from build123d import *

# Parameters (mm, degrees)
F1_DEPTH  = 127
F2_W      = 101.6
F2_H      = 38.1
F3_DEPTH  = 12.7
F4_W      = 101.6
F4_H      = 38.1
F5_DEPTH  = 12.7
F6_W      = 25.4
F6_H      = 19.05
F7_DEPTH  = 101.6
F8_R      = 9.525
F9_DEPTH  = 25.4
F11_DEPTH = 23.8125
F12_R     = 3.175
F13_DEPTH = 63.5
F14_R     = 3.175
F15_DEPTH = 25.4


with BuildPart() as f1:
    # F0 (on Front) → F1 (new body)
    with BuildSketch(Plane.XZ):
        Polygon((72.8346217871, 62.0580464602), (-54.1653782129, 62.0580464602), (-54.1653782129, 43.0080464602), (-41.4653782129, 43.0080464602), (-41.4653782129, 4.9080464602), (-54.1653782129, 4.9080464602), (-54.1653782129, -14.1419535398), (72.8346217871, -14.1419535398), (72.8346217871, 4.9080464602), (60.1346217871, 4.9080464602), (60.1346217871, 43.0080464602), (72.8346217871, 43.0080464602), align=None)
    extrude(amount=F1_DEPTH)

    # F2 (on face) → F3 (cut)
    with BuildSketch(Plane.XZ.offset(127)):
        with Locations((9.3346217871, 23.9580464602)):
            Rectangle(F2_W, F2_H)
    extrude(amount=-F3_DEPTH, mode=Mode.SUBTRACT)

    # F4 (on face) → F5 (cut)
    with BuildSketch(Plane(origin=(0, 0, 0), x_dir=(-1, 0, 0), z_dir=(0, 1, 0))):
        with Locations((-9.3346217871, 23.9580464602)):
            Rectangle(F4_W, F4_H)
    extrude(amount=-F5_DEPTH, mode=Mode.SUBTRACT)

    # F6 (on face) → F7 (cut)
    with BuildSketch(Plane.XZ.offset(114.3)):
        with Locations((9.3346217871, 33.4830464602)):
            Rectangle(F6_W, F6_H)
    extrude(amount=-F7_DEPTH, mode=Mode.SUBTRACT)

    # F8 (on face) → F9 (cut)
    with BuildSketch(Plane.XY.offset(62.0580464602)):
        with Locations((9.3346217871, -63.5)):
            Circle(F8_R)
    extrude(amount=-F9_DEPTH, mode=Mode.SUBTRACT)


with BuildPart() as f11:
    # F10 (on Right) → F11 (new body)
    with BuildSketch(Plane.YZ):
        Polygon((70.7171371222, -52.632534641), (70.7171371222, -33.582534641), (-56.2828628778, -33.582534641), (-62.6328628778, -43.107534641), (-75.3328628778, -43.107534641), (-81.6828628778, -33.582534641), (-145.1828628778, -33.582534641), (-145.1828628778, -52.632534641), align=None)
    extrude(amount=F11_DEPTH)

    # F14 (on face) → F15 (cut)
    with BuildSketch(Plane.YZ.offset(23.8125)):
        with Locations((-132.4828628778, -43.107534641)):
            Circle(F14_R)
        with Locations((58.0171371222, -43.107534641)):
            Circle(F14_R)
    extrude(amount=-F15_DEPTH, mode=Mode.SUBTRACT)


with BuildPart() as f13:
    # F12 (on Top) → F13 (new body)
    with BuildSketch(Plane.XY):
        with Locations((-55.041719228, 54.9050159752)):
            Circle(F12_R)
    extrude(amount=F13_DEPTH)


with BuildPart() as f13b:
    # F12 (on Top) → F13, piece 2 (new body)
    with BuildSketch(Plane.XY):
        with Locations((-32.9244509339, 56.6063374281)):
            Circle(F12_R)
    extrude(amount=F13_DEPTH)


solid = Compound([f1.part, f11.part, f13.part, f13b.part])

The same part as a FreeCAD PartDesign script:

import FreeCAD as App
import Part
import Sketcher
Q = App.Units.Quantity

doc = App.newDocument("Part")
params = doc.addObject("Spreadsheet::Sheet", "Params")
for row, (alias, value) in enumerate([
    ("sketch1_width", "5 in"),
    ("sketch1_width2", "0.5 in"),
    ("sketch1_height", "1.5 in"),
    ("pad1_length", "5 in"),
    ("sketch2_width", "4 in"),
    ("sketch2_height", "1.5 in"),
    ("pocket1_length", "0.5 in"),
    ("sketch3_width", "4 in"),
    ("sketch3_height", "1.5 in"),
    ("pocket2_length", "0.5 in"),
    ("sketch4_width", "1 in"),
    ("sketch4_height", "0.75 in"),
    ("pocket3_length", "4 in"),
    ("sketch5_diameter", "0.75 in"),
    ("pocket4_length", "1 in"),
    ("sketch6_width", "5 in"),
    ("sketch6_width2", "0.5 in"),
    ("sketch6_width3", "2.5 in"),
    ("sketch6_width4", "8.5 in"),
    ("sketch6_height", "0.75 in"),
    ("pad2_length", "0.9375 in"),
    ("sketch7_diameter", "0.25 in"),
    ("pocket5_length", "1 in"),
    ("sketch8_diameter", "0.25 in"),
    ("pad3_length", "2.5 in"),
    ("sketch9_diameter", "0.25 in"),
    ("pad4_length", "2.5 in"),
], start=1):
    params.set(f"A{row}", alias)
    params.set(f"B{row}", "=" + value)
    params.setAlias(f"B{row}", alias)

body = doc.addObject("PartDesign::Body", "Body")

# Sketch on XZ plane
sketch1 = body.newObject("Sketcher::SketchObject", "Sketch")
sketch1.AttachmentSupport = (doc.getObject("XZ_Plane"), [""])
sketch1.MapMode = "FlatFace"
sketch1.addGeometry([
    Part.LineSegment(App.Vector(73, 62, 0), App.Vector(-54, 62, 0)),  # 0
    Part.LineSegment(App.Vector(-54, 62, 0), App.Vector(-54, 43, 0)),  # 1
    Part.LineSegment(App.Vector(-54, 43, 0), App.Vector(-41, 43, 0)),  # 2
    Part.LineSegment(App.Vector(-41, 43, 0), App.Vector(-41, 5, 0)),  # 3
    Part.LineSegment(App.Vector(-41, 5, 0), App.Vector(-54, 5, 0)),  # 4
    Part.LineSegment(App.Vector(-54, 5, 0), App.Vector(-54, -14, 0)),  # 5
    Part.LineSegment(App.Vector(-54, -14, 0), App.Vector(73, -14, 0)),  # 6
    Part.LineSegment(App.Vector(73, -14, 0), App.Vector(73, 5, 0)),  # 7
    Part.LineSegment(App.Vector(73, 5, 0), App.Vector(60, 5, 0)),  # 8
    Part.LineSegment(App.Vector(60, 5, 0), App.Vector(60, 43, 0)),  # 9
    Part.LineSegment(App.Vector(60, 43, 0), App.Vector(73, 43, 0)),  # 10
    Part.LineSegment(App.Vector(73, 43, 0), App.Vector(73, 62, 0)),  # 11
], False)
sketch1.addConstraint([
    Sketcher.Constraint("Coincident", 0, 2, 1, 1),
    Sketcher.Constraint("Coincident", 1, 2, 2, 1),
    Sketcher.Constraint("Coincident", 2, 2, 3, 1),
    Sketcher.Constraint("Coincident", 3, 2, 4, 1),
    Sketcher.Constraint("Coincident", 4, 2, 5, 1),
    Sketcher.Constraint("Coincident", 5, 2, 6, 1),
    Sketcher.Constraint("Coincident", 6, 2, 7, 1),
    Sketcher.Constraint("Coincident", 7, 2, 8, 1),
    Sketcher.Constraint("Coincident", 8, 2, 9, 1),
    Sketcher.Constraint("Coincident", 9, 2, 10, 1),
    Sketcher.Constraint("Coincident", 10, 2, 11, 1),
    Sketcher.Constraint("Coincident", 11, 2, 0, 1),
    Sketcher.Constraint("Horizontal", 0),
    Sketcher.Constraint("Vertical", 1),
    Sketcher.Constraint("Horizontal", 2),
    Sketcher.Constraint("Vertical", 3),
    Sketcher.Constraint("Horizontal", 4),
    Sketcher.Constraint("Vertical", 5),
    Sketcher.Constraint("Horizontal", 6),
    Sketcher.Constraint("Vertical", 7),
    Sketcher.Constraint("Horizontal", 8),
    Sketcher.Constraint("Vertical", 9),
    Sketcher.Constraint("Horizontal", 10),
    Sketcher.Constraint("Vertical", 11),
    Sketcher.Constraint("Horizontal", 4, 2, 7, 2),
    Sketcher.Constraint("Horizontal", 2, 2, 9, 2),
    Sketcher.Constraint("Vertical", 1, 2, 4, 2),
    Sketcher.Constraint("Vertical", 7, 2, 10, 2),
    Sketcher.Constraint("Equal", 4, 8),
    Sketcher.Constraint("Equal", 1, 5),
    Sketcher.Constraint("DistanceX", 0, 2, 0, 1, Q("5 in")),
    Sketcher.Constraint("DistanceX", 2, 1, 2, 2, Q("0.5 in")),
    Sketcher.Constraint("DistanceY", 3, 2, 3, 1, Q("1.5 in")),
    Sketcher.Constraint("DistanceY", 5, 2, 0, 2, Q("3 in")),
    Sketcher.Constraint("DistanceX", 0, 2, -1, 1, Q("54.165378 mm")),
    Sketcher.Constraint("DistanceY", -1, 1, 0, 2, Q("62.058046 mm")),
])
sketch1.setExpression("Constraints[30]", "Params.sketch1_width")
sketch1.setExpression("Constraints[31]", "Params.sketch1_width2")
sketch1.setExpression("Constraints[32]", "Params.sketch1_height")
pad1 = body.newObject("PartDesign::Pad", "Pad")
pad1.Profile = sketch1
pad1.setExpression("Length", "Params.pad1_length")

# Sketch on XZ plane
sketch2 = body.newObject("Sketcher::SketchObject", "Sketch001")
sketch2.AttachmentSupport = (doc.getObject("XZ_Plane"), [""])
sketch2.MapMode = "FlatFace"
sketch2.AttachmentOffset = App.Placement(App.Vector(0, 0, 5 * 25.4), App.Rotation())
sketch2.addGeometry([
    Part.LineSegment(App.Vector(-41, 43, 0), App.Vector(-41, 5, 0)),
    Part.LineSegment(App.Vector(-41, 5, 0), App.Vector(60, 5, 0)),
    Part.LineSegment(App.Vector(60, 5, 0), App.Vector(60, 43, 0)),
    Part.LineSegment(App.Vector(60, 43, 0), App.Vector(-41, 43, 0)),
], False)
sketch2.addConstraint([
    Sketcher.Constraint("Coincident", 0, 2, 1, 1),
    Sketcher.Constraint("Coincident", 1, 2, 2, 1),
    Sketcher.Constraint("Coincident", 2, 2, 3, 1),
    Sketcher.Constraint("Coincident", 3, 2, 0, 1),
    Sketcher.Constraint("Vertical", 0),
    Sketcher.Constraint("Horizontal", 1),
    Sketcher.Constraint("Vertical", 2),
    Sketcher.Constraint("Horizontal", 3),
    Sketcher.Constraint("DistanceX", 1, 1, 1, 2, Q("4 in")),
    Sketcher.Constraint("DistanceY", 0, 2, 0, 1, Q("1.5 in")),
    Sketcher.Constraint("DistanceX", 0, 2, -1, 1, Q("41.465378 mm")),
    Sketcher.Constraint("DistanceY", -1, 1, 0, 2, Q("4.908046 mm")),
])
sketch2.setExpression("Constraints[8]", "Params.sketch2_width")
sketch2.setExpression("Constraints[9]", "Params.sketch2_height")
pocket1 = body.newObject("PartDesign::Pocket", "Pocket")
pocket1.Profile = sketch2
pocket1.setExpression("Length", "Params.pocket1_length")

# Sketch on XZ plane
sketch3 = body.newObject("Sketcher::SketchObject", "Sketch002")
sketch3.AttachmentSupport = (doc.getObject("XZ_Plane"), [""])
sketch3.MapMode = "FlatFace"
sketch3.addGeometry([
    Part.LineSegment(App.Vector(60, 43, 0), App.Vector(60, 5, 0)),
    Part.LineSegment(App.Vector(60, 5, 0), App.Vector(-41, 5, 0)),
    Part.LineSegment(App.Vector(-41, 5, 0), App.Vector(-41, 43, 0)),
    Part.LineSegment(App.Vector(-41, 43, 0), App.Vector(60, 43, 0)),
], False)
sketch3.addConstraint([
    Sketcher.Constraint("Coincident", 0, 2, 1, 1),
    Sketcher.Constraint("Coincident", 1, 2, 2, 1),
    Sketcher.Constraint("Coincident", 2, 2, 3, 1),
    Sketcher.Constraint("Coincident", 3, 2, 0, 1),
    Sketcher.Constraint("Vertical", 0),
    Sketcher.Constraint("Horizontal", 1),
    Sketcher.Constraint("Vertical", 2),
    Sketcher.Constraint("Horizontal", 3),
    Sketcher.Constraint("DistanceX", 1, 2, 1, 1, Q("4 in")),
    Sketcher.Constraint("DistanceY", 0, 2, 0, 1, Q("1.5 in")),
    Sketcher.Constraint("DistanceX", -1, 1, 0, 2, Q("60.134622 mm")),
    Sketcher.Constraint("DistanceY", -1, 1, 0, 2, Q("4.908046 mm")),
])
sketch3.setExpression("Constraints[8]", "Params.sketch3_width")
sketch3.setExpression("Constraints[9]", "Params.sketch3_height")
pocket2 = body.newObject("PartDesign::Pocket", "Pocket001")
pocket2.Profile = sketch3
pocket2.setExpression("Length", "Params.pocket2_length")
pocket2.Reversed = True

# Sketch on XZ plane
sketch4 = body.newObject("Sketcher::SketchObject", "Sketch003")
sketch4.AttachmentSupport = (doc.getObject("XZ_Plane"), [""])
sketch4.MapMode = "FlatFace"
sketch4.AttachmentOffset = App.Placement(App.Vector(0, 0, 4.5 * 25.4), App.Rotation())
sketch4.addGeometry([
    Part.LineSegment(App.Vector(-3, 43, 0), App.Vector(-3, 24, 0)),
    Part.LineSegment(App.Vector(-3, 24, 0), App.Vector(22, 24, 0)),
    Part.LineSegment(App.Vector(22, 24, 0), App.Vector(22, 43, 0)),
    Part.LineSegment(App.Vector(22, 43, 0), App.Vector(-3, 43, 0)),
], False)
sketch4.addConstraint([
    Sketcher.Constraint("Coincident", 0, 2, 1, 1),
    Sketcher.Constraint("Coincident", 1, 2, 2, 1),
    Sketcher.Constraint("Coincident", 2, 2, 3, 1),
    Sketcher.Constraint("Coincident", 3, 2, 0, 1),
    Sketcher.Constraint("Vertical", 0),
    Sketcher.Constraint("Horizontal", 1),
    Sketcher.Constraint("Vertical", 2),
    Sketcher.Constraint("Horizontal", 3),
    Sketcher.Constraint("DistanceX", 1, 1, 1, 2, Q("1 in")),
    Sketcher.Constraint("DistanceY", 0, 2, 0, 1, Q("0.75 in")),
    Sketcher.Constraint("DistanceX", 0, 2, -1, 1, Q("3.365378 mm")),
    Sketcher.Constraint("DistanceY", -1, 1, 0, 2, Q("23.958046 mm")),
])
sketch4.setExpression("Constraints[8]", "Params.sketch4_width")
sketch4.setExpression("Constraints[9]", "Params.sketch4_height")
pocket3 = body.newObject("PartDesign::Pocket", "Pocket002")
pocket3.Profile = sketch4
pocket3.setExpression("Length", "Params.pocket3_length")

# Sketch on XY plane
sketch5 = body.newObject("Sketcher::SketchObject", "Sketch004")
sketch5.AttachmentSupport = (doc.getObject("XY_Plane"), [""])
sketch5.MapMode = "FlatFace"
sketch5.AttachmentOffset = App.Placement(App.Vector(0, 0, 62.058046), App.Rotation())
sketch5.addGeometry(Part.Circle(App.Vector(9, -64, 0), App.Vector(0, 0, 1), 10), False)
sketch5.addConstraint([
    Sketcher.Constraint("Diameter", 0, Q("0.75 in")),
    Sketcher.Constraint("DistanceY", 0, 3, -1, 1, Q("2.5 in")),
    Sketcher.Constraint("DistanceX", -1, 1, 0, 3, Q("9.334622 mm")),
])
sketch5.setExpression("Constraints[0]", "Params.sketch5_diameter")
pocket4 = body.newObject("PartDesign::Pocket", "Pocket003")
pocket4.Profile = sketch5
pocket4.setExpression("Length", "Params.pocket4_length")
body2 = doc.addObject("PartDesign::Body", "Body001")

# Sketch on YZ plane
sketch6 = body2.newObject("Sketcher::SketchObject", "Sketch005")
sketch6.AttachmentSupport = (doc.getObject("YZ_Plane001"), [""])
sketch6.MapMode = "FlatFace"
sketch6.addGeometry([
    Part.LineSegment(App.Vector(71, -53, 0), App.Vector(71, -34, 0)),  # 0
    Part.LineSegment(App.Vector(71, -34, 0), App.Vector(-56, -34, 0)),  # 1
    Part.LineSegment(App.Vector(-56, -34, 0), App.Vector(-63, -43, 0)),  # 2
    Part.LineSegment(App.Vector(-63, -43, 0), App.Vector(-75, -43, 0)),  # 3
    Part.LineSegment(App.Vector(-75, -43, 0), App.Vector(-82, -34, 0)),  # 4
    Part.LineSegment(App.Vector(-82, -34, 0), App.Vector(-145, -34, 0)),  # 5
    Part.LineSegment(App.Vector(-145, -34, 0), App.Vector(-145, -53, 0)),  # 6
    Part.LineSegment(App.Vector(-145, -53, 0), App.Vector(71, -53, 0)),  # 7
], False)
sketch6.addConstraint([
    Sketcher.Constraint("Coincident", 0, 2, 1, 1),
    Sketcher.Constraint("Coincident", 1, 2, 2, 1),
    Sketcher.Constraint("Coincident", 2, 2, 3, 1),
    Sketcher.Constraint("Coincident", 3, 2, 4, 1),
    Sketcher.Constraint("Coincident", 4, 2, 5, 1),
    Sketcher.Constraint("Coincident", 5, 2, 6, 1),
    Sketcher.Constraint("Coincident", 6, 2, 7, 1),
    Sketcher.Constraint("Coincident", 7, 2, 0, 1),
    Sketcher.Constraint("Vertical", 0),
    Sketcher.Constraint("Horizontal", 1),
    Sketcher.Constraint("Horizontal", 3),
    Sketcher.Constraint("Horizontal", 5),
    Sketcher.Constraint("Vertical", 6),
    Sketcher.Constraint("Horizontal", 7),
    Sketcher.Constraint("Horizontal", 1, 2, 4, 2),
    Sketcher.Constraint("Equal", 2, 4),
    Sketcher.Constraint("DistanceX", 1, 2, 1, 1, Q("5 in")),
    Sketcher.Constraint("DistanceX", 3, 2, 3, 1, Q("0.5 in")),
    Sketcher.Constraint("DistanceX", 5, 2, 5, 1, Q("2.5 in")),
    Sketcher.Constraint("DistanceX", 7, 1, 7, 2, Q("8.5 in")),
    Sketcher.Constraint("DistanceY", 0, 1, 0, 2, Q("0.75 in")),
    Sketcher.Constraint("DistanceY", 2, 2, 1, 2, Q("0.375 in")),
    Sketcher.Constraint("DistanceX", -1, 1, 0, 2, Q("70.717137 mm")),
    Sketcher.Constraint("DistanceY", 0, 2, -1, 1, Q("33.582535 mm")),
])
sketch6.setExpression("Constraints[16]", "Params.sketch6_width")
sketch6.setExpression("Constraints[17]", "Params.sketch6_width2")
sketch6.setExpression("Constraints[18]", "Params.sketch6_width3")
sketch6.setExpression("Constraints[19]", "Params.sketch6_width4")
sketch6.setExpression("Constraints[20]", "Params.sketch6_height")
pad2 = body2.newObject("PartDesign::Pad", "Pad001")
pad2.Profile = sketch6
pad2.setExpression("Length", "Params.pad2_length")

# Sketch on YZ plane
sketch7 = body2.newObject("Sketcher::SketchObject", "Sketch006")
sketch7.AttachmentSupport = (doc.getObject("YZ_Plane001"), [""])
sketch7.MapMode = "FlatFace"
sketch7.AttachmentOffset = App.Placement(App.Vector(0, 0, 0.9375 * 25.4), App.Rotation())
sketch7.addGeometry([
    Part.Circle(App.Vector(-132.5, -43.1, 0), App.Vector(0, 0, 1), 3.2),
    Part.Circle(App.Vector(58, -43.1, 0), App.Vector(0, 0, 1), 3.2),
], False)
sketch7.addConstraint([
    Sketcher.Constraint("Equal", 0, 1),
    Sketcher.Constraint("Horizontal", 0, 3, 1, 3),
    Sketcher.Constraint("Diameter", 0, Q("0.25 in")),
    Sketcher.Constraint("DistanceX", 0, 3, 1, 3, Q("7.5 in")),
    Sketcher.Constraint("DistanceX", 0, 3, -1, 1, Q("132.482863 mm")),
    Sketcher.Constraint("DistanceY", 0, 3, -1, 1, Q("43.107535 mm")),
])
sketch7.setExpression("Constraints[2]", "Params.sketch7_diameter")
pocket5 = body2.newObject("PartDesign::Pocket", "Pocket004")
pocket5.Profile = sketch7
pocket5.setExpression("Length", "Params.pocket5_length")
body3 = doc.addObject("PartDesign::Body", "Body002")

# Sketch on XY plane
sketch8 = body3.newObject("Sketcher::SketchObject", "Sketch007")
sketch8.AttachmentSupport = (doc.getObject("XY_Plane002"), [""])
sketch8.MapMode = "FlatFace"
sketch8.addGeometry(Part.Circle(App.Vector(-55, 54.9, 0), App.Vector(0, 0, 1), 3.2), False)
sketch8.addConstraint([
    Sketcher.Constraint("Diameter", 0, Q("0.25 in")),
    Sketcher.Constraint("DistanceX", 0, 3, -1, 1, Q("55.041719 mm")),
    Sketcher.Constraint("DistanceY", -1, 1, 0, 3, Q("54.905016 mm")),
])
sketch8.setExpression("Constraints[0]", "Params.sketch8_diameter")
pad3 = body3.newObject("PartDesign::Pad", "Pad002")
pad3.Profile = sketch8
pad3.setExpression("Length", "Params.pad3_length")
body4 = doc.addObject("PartDesign::Body", "Body003")

# Sketch on XY plane
sketch9 = body4.newObject("Sketcher::SketchObject", "Sketch008")
sketch9.AttachmentSupport = (doc.getObject("XY_Plane003"), [""])
sketch9.MapMode = "FlatFace"
sketch9.addGeometry(Part.Circle(App.Vector(-32.9, 56.6, 0), App.Vector(0, 0, 1), 3.2), False)
sketch9.addConstraint([
    Sketcher.Constraint("Diameter", 0, Q("0.25 in")),
    Sketcher.Constraint("DistanceX", 0, 3, -1, 1, Q("32.924451 mm")),
    Sketcher.Constraint("DistanceY", -1, 1, 0, 3, Q("56.606337 mm")),
])
sketch9.setExpression("Constraints[0]", "Params.sketch9_diameter")
pad4 = body4.newObject("PartDesign::Pad", "Pad003")
pad4.Profile = sketch9
pad4.setExpression("Length", "Params.pad4_length")

doc.recompute()
